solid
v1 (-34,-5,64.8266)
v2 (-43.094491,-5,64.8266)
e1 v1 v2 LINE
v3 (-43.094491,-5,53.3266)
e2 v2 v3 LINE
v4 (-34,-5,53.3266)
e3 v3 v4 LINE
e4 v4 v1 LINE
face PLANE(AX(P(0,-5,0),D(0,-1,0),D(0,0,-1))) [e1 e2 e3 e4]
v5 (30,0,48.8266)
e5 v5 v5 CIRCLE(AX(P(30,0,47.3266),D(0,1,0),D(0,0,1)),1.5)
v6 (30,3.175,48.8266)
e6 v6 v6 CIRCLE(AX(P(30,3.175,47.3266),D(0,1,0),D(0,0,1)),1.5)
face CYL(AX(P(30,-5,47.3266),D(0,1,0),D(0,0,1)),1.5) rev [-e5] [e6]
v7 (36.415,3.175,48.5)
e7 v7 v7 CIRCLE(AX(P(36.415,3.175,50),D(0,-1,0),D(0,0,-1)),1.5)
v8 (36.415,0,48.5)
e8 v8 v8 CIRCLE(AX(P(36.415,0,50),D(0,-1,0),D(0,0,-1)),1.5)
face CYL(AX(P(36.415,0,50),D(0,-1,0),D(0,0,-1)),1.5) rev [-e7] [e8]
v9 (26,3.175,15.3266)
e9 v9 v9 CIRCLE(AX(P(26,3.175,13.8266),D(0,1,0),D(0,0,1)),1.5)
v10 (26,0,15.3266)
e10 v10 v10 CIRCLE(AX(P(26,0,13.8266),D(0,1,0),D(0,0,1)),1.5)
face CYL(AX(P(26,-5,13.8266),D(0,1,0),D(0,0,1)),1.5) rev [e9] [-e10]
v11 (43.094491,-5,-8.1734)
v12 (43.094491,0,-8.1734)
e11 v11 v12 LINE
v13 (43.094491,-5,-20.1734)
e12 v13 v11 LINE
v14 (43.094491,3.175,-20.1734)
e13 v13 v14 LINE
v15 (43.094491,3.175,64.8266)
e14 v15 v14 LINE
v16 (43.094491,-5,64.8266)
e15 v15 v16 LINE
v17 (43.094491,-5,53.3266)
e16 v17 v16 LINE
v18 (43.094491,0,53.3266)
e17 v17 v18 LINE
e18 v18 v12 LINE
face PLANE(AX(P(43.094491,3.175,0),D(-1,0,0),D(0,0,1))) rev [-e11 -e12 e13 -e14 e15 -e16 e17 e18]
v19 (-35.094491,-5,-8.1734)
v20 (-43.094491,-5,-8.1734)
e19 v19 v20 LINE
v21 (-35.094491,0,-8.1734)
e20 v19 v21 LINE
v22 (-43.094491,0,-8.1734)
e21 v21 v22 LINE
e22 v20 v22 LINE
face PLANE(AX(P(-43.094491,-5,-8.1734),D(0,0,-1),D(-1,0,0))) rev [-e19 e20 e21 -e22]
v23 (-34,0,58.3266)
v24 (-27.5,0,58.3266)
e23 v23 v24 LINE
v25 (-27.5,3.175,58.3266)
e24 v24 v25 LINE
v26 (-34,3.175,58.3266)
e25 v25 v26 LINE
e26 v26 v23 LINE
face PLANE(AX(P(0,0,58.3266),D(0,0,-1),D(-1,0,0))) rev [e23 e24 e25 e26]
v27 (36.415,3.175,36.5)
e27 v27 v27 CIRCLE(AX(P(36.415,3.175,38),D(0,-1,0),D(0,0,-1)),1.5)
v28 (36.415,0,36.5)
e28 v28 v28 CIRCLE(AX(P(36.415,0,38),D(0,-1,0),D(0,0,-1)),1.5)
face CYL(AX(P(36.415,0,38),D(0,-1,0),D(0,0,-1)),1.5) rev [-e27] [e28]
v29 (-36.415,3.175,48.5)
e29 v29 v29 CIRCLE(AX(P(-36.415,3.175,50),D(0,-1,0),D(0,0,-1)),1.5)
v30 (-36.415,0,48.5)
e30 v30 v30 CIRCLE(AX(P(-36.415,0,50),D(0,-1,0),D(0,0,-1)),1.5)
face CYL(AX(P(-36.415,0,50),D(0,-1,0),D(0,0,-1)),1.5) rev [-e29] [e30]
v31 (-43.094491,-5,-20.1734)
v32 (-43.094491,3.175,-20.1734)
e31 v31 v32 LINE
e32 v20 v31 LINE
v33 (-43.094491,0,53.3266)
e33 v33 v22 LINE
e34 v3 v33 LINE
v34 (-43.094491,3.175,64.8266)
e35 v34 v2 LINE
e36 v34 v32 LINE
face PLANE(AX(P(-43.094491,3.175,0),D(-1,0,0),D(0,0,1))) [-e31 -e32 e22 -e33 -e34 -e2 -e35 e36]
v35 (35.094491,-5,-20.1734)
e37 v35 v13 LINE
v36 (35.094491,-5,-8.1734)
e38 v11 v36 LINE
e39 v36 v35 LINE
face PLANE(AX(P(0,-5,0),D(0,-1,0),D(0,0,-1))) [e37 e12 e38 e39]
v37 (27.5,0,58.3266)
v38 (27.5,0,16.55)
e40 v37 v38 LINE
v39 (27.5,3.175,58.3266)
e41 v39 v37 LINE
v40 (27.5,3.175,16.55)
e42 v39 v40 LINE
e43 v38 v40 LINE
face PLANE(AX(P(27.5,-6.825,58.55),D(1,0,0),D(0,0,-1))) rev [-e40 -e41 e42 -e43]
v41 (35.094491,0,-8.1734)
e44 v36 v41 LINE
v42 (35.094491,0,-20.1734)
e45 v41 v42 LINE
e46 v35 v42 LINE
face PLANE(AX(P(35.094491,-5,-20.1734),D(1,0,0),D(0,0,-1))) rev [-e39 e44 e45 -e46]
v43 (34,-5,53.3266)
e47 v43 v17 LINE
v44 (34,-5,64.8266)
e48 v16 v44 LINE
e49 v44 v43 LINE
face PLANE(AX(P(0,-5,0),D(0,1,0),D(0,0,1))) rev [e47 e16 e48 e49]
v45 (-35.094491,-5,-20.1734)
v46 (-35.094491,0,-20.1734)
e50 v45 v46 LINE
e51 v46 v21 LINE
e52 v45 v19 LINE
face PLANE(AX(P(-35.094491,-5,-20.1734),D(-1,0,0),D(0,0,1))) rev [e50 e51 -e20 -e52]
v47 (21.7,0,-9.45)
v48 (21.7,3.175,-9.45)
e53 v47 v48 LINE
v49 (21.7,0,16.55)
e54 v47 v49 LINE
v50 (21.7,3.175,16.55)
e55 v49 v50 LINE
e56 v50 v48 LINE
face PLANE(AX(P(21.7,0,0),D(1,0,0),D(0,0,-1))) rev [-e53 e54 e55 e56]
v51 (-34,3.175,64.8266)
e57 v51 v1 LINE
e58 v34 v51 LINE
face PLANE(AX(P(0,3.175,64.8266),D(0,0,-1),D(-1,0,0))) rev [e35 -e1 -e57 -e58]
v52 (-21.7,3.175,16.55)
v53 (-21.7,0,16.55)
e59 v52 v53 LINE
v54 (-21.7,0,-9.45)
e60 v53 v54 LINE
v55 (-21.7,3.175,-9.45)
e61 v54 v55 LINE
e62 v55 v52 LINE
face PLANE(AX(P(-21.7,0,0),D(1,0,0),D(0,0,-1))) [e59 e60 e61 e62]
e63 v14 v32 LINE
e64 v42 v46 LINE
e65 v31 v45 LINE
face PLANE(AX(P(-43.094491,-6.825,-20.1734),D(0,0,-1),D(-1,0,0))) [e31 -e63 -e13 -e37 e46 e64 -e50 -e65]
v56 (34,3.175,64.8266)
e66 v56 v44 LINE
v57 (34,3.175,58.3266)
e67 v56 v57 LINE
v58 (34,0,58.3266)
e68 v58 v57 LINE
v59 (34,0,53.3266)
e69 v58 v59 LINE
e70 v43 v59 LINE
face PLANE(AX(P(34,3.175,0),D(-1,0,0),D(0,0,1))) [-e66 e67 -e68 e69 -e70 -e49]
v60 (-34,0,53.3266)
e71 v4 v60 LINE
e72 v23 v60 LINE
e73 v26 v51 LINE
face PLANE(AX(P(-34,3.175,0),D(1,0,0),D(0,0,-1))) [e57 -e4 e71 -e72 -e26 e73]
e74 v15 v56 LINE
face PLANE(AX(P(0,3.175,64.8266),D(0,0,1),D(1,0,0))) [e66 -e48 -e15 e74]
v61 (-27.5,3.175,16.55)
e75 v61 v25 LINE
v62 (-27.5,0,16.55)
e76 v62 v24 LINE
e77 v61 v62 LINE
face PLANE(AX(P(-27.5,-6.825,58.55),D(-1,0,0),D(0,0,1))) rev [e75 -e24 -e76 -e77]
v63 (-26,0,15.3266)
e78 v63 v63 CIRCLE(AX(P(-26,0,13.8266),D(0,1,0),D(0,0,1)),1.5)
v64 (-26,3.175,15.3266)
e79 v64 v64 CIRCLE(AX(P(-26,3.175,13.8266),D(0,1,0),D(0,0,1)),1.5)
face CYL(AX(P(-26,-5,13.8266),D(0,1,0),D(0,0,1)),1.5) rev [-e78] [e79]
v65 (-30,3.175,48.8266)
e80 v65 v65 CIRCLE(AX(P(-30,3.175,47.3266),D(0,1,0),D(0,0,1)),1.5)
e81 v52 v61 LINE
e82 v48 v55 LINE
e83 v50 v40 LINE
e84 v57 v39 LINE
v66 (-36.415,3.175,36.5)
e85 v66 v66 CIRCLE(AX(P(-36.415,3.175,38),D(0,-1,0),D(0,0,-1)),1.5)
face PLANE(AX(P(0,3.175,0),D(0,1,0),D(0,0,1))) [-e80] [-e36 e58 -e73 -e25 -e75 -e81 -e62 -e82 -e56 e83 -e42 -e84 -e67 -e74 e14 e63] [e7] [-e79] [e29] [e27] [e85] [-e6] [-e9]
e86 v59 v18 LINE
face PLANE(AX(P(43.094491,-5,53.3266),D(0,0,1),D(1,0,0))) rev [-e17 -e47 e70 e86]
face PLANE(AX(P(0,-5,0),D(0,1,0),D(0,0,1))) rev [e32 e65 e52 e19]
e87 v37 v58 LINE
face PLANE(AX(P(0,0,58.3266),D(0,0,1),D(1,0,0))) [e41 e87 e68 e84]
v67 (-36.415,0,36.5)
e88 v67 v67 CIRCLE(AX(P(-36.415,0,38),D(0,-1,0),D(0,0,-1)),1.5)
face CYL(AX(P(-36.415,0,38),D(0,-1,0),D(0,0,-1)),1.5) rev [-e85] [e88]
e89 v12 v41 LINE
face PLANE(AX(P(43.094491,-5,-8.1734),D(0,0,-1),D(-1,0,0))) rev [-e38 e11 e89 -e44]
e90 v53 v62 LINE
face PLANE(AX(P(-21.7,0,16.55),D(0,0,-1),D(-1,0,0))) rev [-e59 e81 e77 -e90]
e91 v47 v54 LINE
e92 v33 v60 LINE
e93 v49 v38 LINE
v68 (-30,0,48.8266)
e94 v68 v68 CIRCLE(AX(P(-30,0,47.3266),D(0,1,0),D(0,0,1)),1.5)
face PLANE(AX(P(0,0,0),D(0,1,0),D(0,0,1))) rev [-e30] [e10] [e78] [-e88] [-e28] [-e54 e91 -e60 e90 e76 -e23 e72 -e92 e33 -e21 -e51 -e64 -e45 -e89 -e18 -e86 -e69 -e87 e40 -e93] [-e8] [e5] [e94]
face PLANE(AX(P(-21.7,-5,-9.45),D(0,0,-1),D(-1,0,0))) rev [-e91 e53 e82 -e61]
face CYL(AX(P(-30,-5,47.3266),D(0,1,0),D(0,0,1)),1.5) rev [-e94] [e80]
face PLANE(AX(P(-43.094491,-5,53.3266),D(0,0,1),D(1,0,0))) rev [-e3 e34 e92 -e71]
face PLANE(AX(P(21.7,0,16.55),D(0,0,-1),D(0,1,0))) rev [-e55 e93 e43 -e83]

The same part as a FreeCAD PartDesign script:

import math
import FreeCAD as App
import Part
import Sketcher
from FreeCAD import Vector
Q = App.Units.Quantity


def add_polygon(sketch, points):
    """Adds a closed chain of lines whose ends are joined by coincident constraints."""
    first, n = sketch.GeometryCount, len(points)
    for a, b in zip(points, points[1:] + points[:1]):
        sketch.addGeometry(Part.LineSegment(App.Vector(*a, 0), App.Vector(*b, 0)), False)
    for i in range(n):
        sketch.addConstraint(Sketcher.Constraint("Coincident", first + i, 2, first + (i + 1) % n, 1))

doc = App.newDocument("Part")
params = doc.addObject("Spreadsheet::Sheet", "Params")
for row, (alias, value) in enumerate([
    ("sketch1_radius", "85 mm"),
    ("sketch1_width", "68 mm"),
    ("pad1_length", "3.175 mm"),
    ("sketch2_diameter", "3 mm"),
    ("hole_diameter", "3 mm"),
    ("sketch3_diameter", "3.1 mm"),
    ("hole2_diameter", "3.1 mm"),
    ("sketch4_diameter", "2.95 mm"),
    ("hole3_diameter", "2.95 mm"),
    ("sketch5_diameter", "3.1 mm"),
    ("hole4_diameter", "3.1 mm"),
    ("sketch6_radius", "1.5 mm"),
    ("sketch6_height", "5 mm"),
    ("pad2_length", "3.175 mm"),
    ("sketch8_height", "30 mm"),
    ("sketch8_width", "5.8 mm"),
    ("sketch8_width2", "42.4 mm"),
    ("sketch8_height2", "24.2 mm"),
    ("sketch9_diameter", "3 mm"),
    ("sketch10_width", "55 mm"),
    ("sketch10_height", "60 mm"),
    ("pocket4_length", "10 mm"),
    ("sketch11_height", "85 mm"),
    ("pocket5_length", "10 mm"),
    ("sketch12_width", "68 mm"),
    ("sketch12_height", "11.5 mm"),
    ("sketch13_width", "8 mm"),
    ("sketch13_height", "12 mm"),
    ("sketch13_height2", "11.5 mm"),
    ("pad3_length", "5 mm"),
    ("sketch14_width", "6.5 mm"),
    ("pad4_length", "5 mm"),
    ("sketch15_diameter", "3 mm"),
    ("sketch16_height", "18 mm"),
    ("pad5_length", "5.8 mm"),
    ("sketch17_height", "18 mm"),
    ("pad6_length", "5.8 mm"),
    ("sketch18_diameter", "3 mm"),
    ("sketch19_height", "8 mm"),
    ("sketch19_width", "43.4 mm"),
], start=1):
    params.set(f"A{row}", alias)
    params.set(f"B{row}", "=" + value)
    params.setAlias(f"B{row}", alias)

body = doc.addObject("PartDesign::Body", "Body")

# Sketch on XZ plane
sketch1 = body.newObject("Sketcher::SketchObject", "Sketch")
sketch1.AttachmentSupport = (doc.getObject("XZ_Plane"), [""])
sketch1.MapMode = "FlatFace"
sketch1.addGeometry(Part.LineSegment(Vector(-62.8, -32.5, 0), Vector(-74, -32.7, 0)), False)
sketch1.addGeometry(Part.LineSegment(Vector(-74, -32.7, 0), Vector(-77.1, -35.9, 0)), False)
sketch1.addGeometry(Part.ArcOfCircle(Part.Circle(Vector(0, 0, 0), Vector(0, 0, 1), 85), math.radians(169), math.radians(205)), False)
sketch1.addGeometry(Part.LineSegment(Vector(-83.4, 16.2, 0), Vector(-79.7, 13.8, 0)), False)
sketch1.addGeometry(Part.LineSegment(Vector(-79.7, 13.8, 0), Vector(-69.5, 16.2, 0)), False)
sketch1.addGeometry(Part.LineSegment(Vector(-69.5, 16.2, 0), Vector(-43.1, 58.4, 0)), False)
sketch1.addGeometry(Part.LineSegment(Vector(-43.1, 58.4, 0), Vector(-43.1, 64.8, 0)), False)
sketch1.addGeometry(Part.LineSegment(Vector(-43.1, 64.8, 0), Vector(-34, 64.8, 0)), False)
sketch1.addGeometry(Part.LineSegment(Vector(-34, 64.8, 0), Vector(-34, 58.5, 0)), False)
sketch1.addGeometry(Part.LineSegment(Vector(-34, 58.5, 0), Vector(34, 58.5, 0)), False)
sketch1.addGeometry(Part.LineSegment(Vector(34, 58.5, 0), Vector(34, 64.8, 0)), False)
sketch1.addGeometry(Part.LineSegment(Vector(34, 64.8, 0), Vector(43.1, 64.8, 0)), False)
sketch1.addGeometry(Part.LineSegment(Vector(43.1, 64.8, 0), Vector(43.1, 58.4, 0)), False)
sketch1.addGeometry(Part.LineSegment(Vector(43.1, 58.4, 0), Vector(69.5, 16.2, 0)), False)
sketch1.addGeometry(Part.LineSegment(Vector(69.5, 16.2, 0), Vector(79.7, 13.8, 0)), False)
sketch1.addGeometry(Part.LineSegment(Vector(79.7, 13.8, 0), Vector(83.4, 16.2, 0)), False)
sketch1.addGeometry(Part.ArcOfCircle(Part.Circle(Vector(0, 0, 0), Vector(0, 0, 1), 85), math.radians(-25), math.radians(11)), False)
sketch1.addGeometry(Part.LineSegment(Vector(77.1, -35.9, 0), Vector(74, -32.7, 0)), False)
sketch1.addGeometry(Part.LineSegment(Vector(74, -32.7, 0), Vector(62.8, -32.5, 0)), False)
sketch1.addGeometry(Part.LineSegment(Vector(62.8, -32.5, 0), Vector(30.3, -63.9, 0)), False)
sketch1.addGeometry(Part.LineSegment(Vector(30.3, -63.9, 0), Vector(30.1, -75.1, 0)), False)
sketch1.addGeometry(Part.LineSegment(Vector(30.1, -75.1, 0), Vector(33.2, -78.3, 0)), False)
sketch1.addGeometry(Part.ArcOfCircle(Part.Circle(Vector(0, 0, 0), Vector(0, 0, 1), 85), math.radians(-113), math.radians(-67)), False)
sketch1.addGeometry(Part.LineSegment(Vector(-33.2, -78.3, 0), Vector(-30.1, -75.1, 0)), False)
sketch1.addGeometry(Part.LineSegment(Vector(-30.1, -75.1, 0), Vector(-30.3, -63.9, 0)), False)
sketch1.addGeometry(Part.LineSegment(Vector(-30.3, -63.9, 0), Vector(-62.8, -32.5, 0)), False)
sketch1.addConstraint(Sketcher.Constraint("Coincident", 0, 2, 1, 1))
sketch1.addConstraint(Sketcher.Constraint("Coincident", 1, 2, 2, 2))
sketch1.addConstraint(Sketcher.Constraint("Coincident", 2, 1, 3, 1))
sketch1.addConstraint(Sketcher.Constraint("Coincident", 3, 2, 4, 1))
sketch1.addConstraint(Sketcher.Constraint("Coincident", 4, 2, 5, 1))
sketch1.addConstraint(Sketcher.Constraint("Coincident", 5, 2, 6, 1))
sketch1.addConstraint(Sketcher.Constraint("Coincident", 6, 2, 7, 1))
sketch1.addConstraint(Sketcher.Constraint("Coincident", 7, 2, 8, 1))
sketch1.addConstraint(Sketcher.Constraint("Coincident", 8, 2, 9, 1))
sketch1.addConstraint(Sketcher.Constraint("Coincident", 9, 2, 10, 1))
sketch1.addConstraint(Sketcher.Constraint("Coincident", 10, 2, 11, 1))
sketch1.addConstraint(Sketcher.Constraint("Coincident", 11, 2, 12, 1))
sketch1.addConstraint(Sketcher.Constraint("Coincident", 12, 2, 13, 1))
sketch1.addConstraint(Sketcher.Constraint("Coincident", 13, 2, 14, 1))
sketch1.addConstraint(Sketcher.Constraint("Coincident", 14, 2, 15, 1))
sketch1.addConstraint(Sketcher.Constraint("Coincident", 15, 2, 16, 2))
sketch1.addConstraint(Sketcher.Constraint("Coincident", 16, 1, 17, 1))
sketch1.addConstraint(Sketcher.Constraint("Coincident", 17, 2, 18, 1))
sketch1.addConstraint(Sketcher.Constraint("Coincident", 18, 2, 19, 1))
sketch1.addConstraint(Sketcher.Constraint("Coincident", 19, 2, 20, 1))
sketch1.addConstraint(Sketcher.Constraint("Coincident", 20, 2, 21, 1))
sketch1.addConstraint(Sketcher.Constraint("Coincident", 21, 2, 22, 2))
sketch1.addConstraint(Sketcher.Constraint("Coincident", 22, 1, 23, 1))
sketch1.addConstraint(Sketcher.Constraint("Coincident", 23, 2, 24, 1))
sketch1.addConstraint(Sketcher.Constraint("Coincident", 24, 2, 25, 1))
sketch1.addConstraint(Sketcher.Constraint("Coincident", 25, 2, 0, 1))
sketch1.addConstraint(Sketcher.Constraint("Vertical", 6))
sketch1.addConstraint(Sketcher.Constraint("Horizontal", 7))
sketch1.addConstraint(Sketcher.Constraint("Vertical", 8))
sketch1.addConstraint(Sketcher.Constraint("Horizontal", 9))
sketch1.addConstraint(Sketcher.Constraint("Vertical", 10))
sketch1.addConstraint(Sketcher.Constraint("Horizontal", 11))
sketch1.addConstraint(Sketcher.Constraint("Vertical", 12))
sketch1.addConstraint(Sketcher.Constraint("Coincident", 2, 3, -1, 1))
sketch1.addConstraint(Sketcher.Constraint("Coincident", 16, 3, -1, 1))
sketch1.addConstraint(Sketcher.Constraint("Coincident", 22, 3, -1, 1))
sketch1.addConstraint(Sketcher.Constraint("Equal", 2, 16))
sketch1.addConstraint(Sketcher.Constraint("Equal", 16, 22))
sketch1.addConstraint(Sketcher.Constraint("Symmetric", 7, 2, 10, 2, -2))
sketch1.addConstraint(Sketcher.Constraint("Symmetric", 5, 2, 12, 2, -2))
sketch1.addConstraint(Sketcher.Constraint("Symmetric", 4, 2, 13, 2, -2))
sketch1.addConstraint(Sketcher.Constraint("Symmetric", 3, 2, 14, 2, -2))
sketch1.addConstraint(Sketcher.Constraint("Symmetric", 0, 2, 17, 2, -2))
sketch1.addConstraint(Sketcher.Constraint("Symmetric", 20, 2, 23, 2, -2))
sketch1.addConstraint(Sketcher.Constraint("Symmetric", 19, 2, 24, 2, -2))
sketch1.addConstraint(Sketcher.Constraint("Symmetric", 18, 2, 25, 2, -2))
sketch1.addConstraint(Sketcher.Constraint("Perpendicular", 3, 5))
sketch1.addConstraint(Sketcher.Constraint("Perpendicular", 13, 15))
sketch1.addConstraint(Sketcher.Constraint("Perpendicular", 17, 19))
sketch1.addConstraint(Sketcher.Constraint("Perpendicular", 18, 20))
sketch1.addConstraint(Sketcher.Constraint("Perpendicular", 19, 21))
sketch1.addConstraint(Sketcher.Constraint("Parallel", 1, 23))
sketch1.addConstraint(Sketcher.Constraint("Perpendicular", 23, 25))
sketch1.addConstraint(Sketcher.Constraint("Equal", 1, 3))
sketch1.addConstraint(Sketcher.Constraint("Equal", 18, 20))
sketch1.addConstraint(Sketcher.Constraint("Equal", 17, 21))
sketch1.addConstraint(Sketcher.Constraint("Radius", 2, Q("85 mm")))
sketch1.addConstraint(Sketcher.Constraint("DistanceX", 9, 1, 9, 2, Q("68 mm")))
sketch1.addConstraint(Sketcher.Constraint("Angle", 0, Q("-179 deg")))
sketch1.addConstraint(Sketcher.Constraint("Angle", 1, Q("-134 deg")))
sketch1.addConstraint(Sketcher.Constraint("Angle", 3, Q("-32 deg")))
sketch1.addConstraint(Sketcher.Constraint("Angle", 4, Q("13 deg")))
sketch1.addConstraint(Sketcher.Constraint("DistanceY", -1, 1, 8, 2, Q("58.55 mm")))
sketch1.addConstraint(Sketcher.Constraint("DistanceY", 8, 2, 8, 1, Q("6.2766 mm")))
sketch1.addConstraint(Sketcher.Constraint("DistanceX", 7, 1, 7, 2, Q("9.094491 mm")))
sketch1.addConstraint(Sketcher.Constraint("Distance", 19, Q("45.20101 mm")))
sketch1.addConstraint(Sketcher.Constraint("DistanceY", 6, 1, 6, 2, Q("6.414308 mm")))
sketch1.addConstraint(Sketcher.Constraint("DistanceY", 1, 2, -1, 1, Q("35.884951 mm")))
sketch1.addConstraint(Sketcher.Constraint("DistanceY", -1, 1, 2, 1, Q("16.178042 mm")))
sketch1.addConstraint(Sketcher.Constraint("DistanceX", 3, 2, -1, 1, Q("79.680912 mm")))
sketch1.setExpression("Constraints[56]", "Params.sketch1_radius")
sketch1.setExpression("Constraints[57]", "Params.sketch1_width")
pad1 = body.newObject("PartDesign::Pad", "Pad")
pad1.Profile = sketch1
pad1.setExpression("Length", "Params.pad1_length")
pad1.Reversed = True

# Sketch on XZ plane
sketch2 = body.newObject("Sketcher::SketchObject", "Sketch001")
sketch2.AttachmentSupport = (doc.getObject("XZ_Plane"), [""])
sketch2.MapMode = "FlatFace"
sketch2.addGeometry(Part.Circle(Vector(-36.4, 50, 0), Vector(0, 0, 1), 1.5), False)
sketch2.addGeometry(Part.Circle(Vector(-36.4, 38, 0), Vector(0, 0, 1), 1.5), False)
sketch2.addGeometry(Part.Circle(Vector(36.4, 50, 0), Vector(0, 0, 1), 1.5), False)
sketch2.addGeometry(Part.Circle(Vector(36.4, 38, 0), Vector(0, 0, 1), 1.5), False)
sketch2.addConstraint(Sketcher.Constraint("Equal", 0, 1))
sketch2.addConstraint(Sketcher.Constraint("Equal", 1, 2))
sketch2.addConstraint(Sketcher.Constraint("Equal", 2, 3))
sketch2.addConstraint(Sketcher.Constraint("Symmetric", 0, 3, 2, 3, -2))
sketch2.addConstraint(Sketcher.Constraint("Symmetric", 1, 3, 3, 3, -2))
sketch2.addConstraint(Sketcher.Constraint("Vertical", 0, 3, 1, 3))
sketch2.addConstraint(Sketcher.Constraint("Diameter", 0, Q("3 mm")))
sketch2.addConstraint(Sketcher.Constraint("DistanceY", -1, 1, 0, 3, Q("50 mm")))
sketch2.addConstraint(Sketcher.Constraint("DistanceY", -1, 1, 1, 3, Q("38 mm")))
sketch2.addConstraint(Sketcher.Constraint("DistanceX", 0, 3, 2, 3, Q("72.83 mm")))
sketch2.setExpression("Constraints[6]", "Params.sketch2_diameter")
doc.recompute()
hole = body.newObject("PartDesign::Hole", "Hole")
hole.Profile = sketch2
hole.ThreadType = "None"
hole.setExpression("Diameter", "Params.hole_diameter")
hole.DepthType = "ThroughAll"

# Sketch on XZ plane
sketch3 = body.newObject("Sketcher::SketchObject", "Sketch002")
sketch3.AttachmentSupport = (doc.getObject("XZ_Plane"), [""])
sketch3.MapMode = "FlatFace"
sketch3.AttachmentOffset = App.Placement(Vector(0, 0, -3.175), App.Rotation())
sketch3.addGeometry(Part.Circle(Vector(-78.5, 8.5, 0), Vector(0, 0, 1), 1.6), False)
sketch3.addGeometry(Part.Circle(Vector(78.5, 8.5, 0), Vector(0, 0, 1), 1.6), False)
sketch3.addGeometry(Part.Circle(Vector(74.2, -27.2, 0), Vector(0, 0, 1), 1.6), False)
sketch3.addGeometry(Part.Circle(Vector(-74.2, -27.2, 0), Vector(0, 0, 1), 1.6), False)
sketch3.addConstraint(Sketcher.Constraint("Equal", 0, 1))
sketch3.addConstraint(Sketcher.Constraint("Equal", 1, 2))
sketch3.addConstraint(Sketcher.Constraint("Equal", 2, 3))
sketch3.addConstraint(Sketcher.Constraint("Symmetric", 0, 3, 1, 3, -2))
sketch3.addConstraint(Sketcher.Constraint("Symmetric", 2, 3, 3, 3, -2))
sketch3.addConstraint(Sketcher.Constraint("Diameter", 0, Q("3.1 mm")))
sketch3.addConstraint(Sketcher.Constraint("DistanceX", 0, 3, -1, 1, Q("78.542321 mm")))
sketch3.addConstraint(Sketcher.Constraint("DistanceY", 2, 3, -1, 1, Q("27.240269 mm")))
sketch3.addConstraint(Sketcher.Constraint("DistanceY", 2, 3, 1, 3, Q("35.731661 mm")))
sketch3.addConstraint(Sketcher.Constraint("DistanceX", 3, 3, 2, 3, Q("148.31005 mm")))
sketch3.setExpression("Constraints[5]", "Params.sketch3_diameter")
doc.recompute()
hole2 = body.newObject("PartDesign::Hole", "Hole001")
hole2.Profile = sketch3
hole2.ThreadType = "None"
hole2.setExpression("Diameter", "Params.hole2_diameter")
hole2.DepthType = "ThroughAll"
hole2.Reversed = True

# Sketch on XZ plane
sketch4 = body.newObject("Sketcher::SketchObject", "Sketch003")
sketch4.AttachmentSupport = (doc.getObject("XZ_Plane"), [""])
sketch4.MapMode = "FlatFace"
sketch4.addGeometry(Part.Circle(Vector(67.1, 15.3, 0), Vector(0, 0, 1), 1.5), False)
sketch4.addGeometry(Part.Circle(Vector(50.1, 42.4, 0), Vector(0, 0, 1), 1.5), False)
sketch4.addGeometry(Part.Circle(Vector(61.1, -30.7, 0), Vector(0, 0, 1), 1.5), False)
sketch4.addGeometry(Part.Circle(Vector(38, -52.9, 0), Vector(0, 0, 1), 1.5), False)
sketch4.addGeometry(Part.Circle(Vector(-50.1, 42.4, 0), Vector(0, 0, 1), 1.5), False)
sketch4.addGeometry(Part.Circle(Vector(-67.1, 15.3, 0), Vector(0, 0, 1), 1.5), False)
sketch4.addGeometry(Part.Circle(Vector(-38, -52.9, 0), Vector(0, 0, 1), 1.5), False)
sketch4.addGeometry(Part.Circle(Vector(-61.1, -30.7, 0), Vector(0, 0, 1), 1.5), False)
sketch4.addConstraint(Sketcher.Constraint("Equal", 0, 1))
sketch4.addConstraint(Sketcher.Constraint("Equal", 1, 2))
sketch4.addConstraint(Sketcher.Constraint("Equal", 2, 3))
sketch4.addConstraint(Sketcher.Constraint("Equal", 3, 4))
sketch4.addConstraint(Sketcher.Constraint("Equal", 4, 5))
sketch4.addConstraint(Sketcher.Constraint("Equal", 5, 6))
sketch4.addConstraint(Sketcher.Constraint("Equal", 6, 7))
sketch4.addConstraint(Sketcher.Constraint("Symmetric", 1, 3, 4, 3, -2))
sketch4.addConstraint(Sketcher.Constraint("Symmetric", 0, 3, 5, 3, -2))
sketch4.addConstraint(Sketcher.Constraint("Symmetric", 3, 3, 6, 3, -2))
sketch4.addConstraint(Sketcher.Constraint("Symmetric", 2, 3, 7, 3, -2))
sketch4.addConstraint(Sketcher.Constraint("Diameter", 0, Q("2.95 mm")))
sketch4.addConstraint(Sketcher.Constraint("DistanceX", -1, 1, 0, 3, Q("67.099302 mm")))
sketch4.addConstraint(Sketcher.Constraint("DistanceX", -1, 1, 3, 3, Q("38.043671 mm")))
sketch4.addConstraint(Sketcher.Constraint("DistanceY", 0, 3, 1, 3, Q("27.137539 mm")))
sketch4.addConstraint(Sketcher.Constraint("DistanceX", 1, 3, 2, 3, Q("10.920659 mm")))
sketch4.addConstraint(Sketcher.Constraint("DistanceY", 3, 3, 0, 3, Q("68.206071 mm")))
sketch4.addConstraint(Sketcher.Constraint("DistanceX", 4, 3, 1, 3, Q("100.28377 mm")))
sketch4.addConstraint(Sketcher.Constraint("DistanceY", -1, 1, 0, 3, Q("15.278865 mm")))
sketch4.addConstraint(Sketcher.Constraint("DistanceY", 2, 3, -1, 1, Q("30.698138 mm")))
sketch4.setExpression("Constraints[11]", "Params.sketch4_diameter")
doc.recompute()
hole3 = body.newObject("PartDesign::Hole", "Hole002")
hole3.Profile = sketch4
hole3.ThreadType = "None"
hole3.setExpression("Diameter", "Params.hole3_diameter")
hole3.DepthType = "ThroughAll"

# Sketch on XZ plane
sketch5 = body.newObject("Sketcher::SketchObject", "Sketch004")
sketch5.AttachmentSupport = (doc.getObject("XZ_Plane"), [""])
sketch5.MapMode = "FlatFace"
sketch5.AttachmentOffset = App.Placement(Vector(0, 0, -3.175), App.Rotation())
sketch5.addGeometry(Part.Circle(Vector(27, -76.5, 0), Vector(0, 0, 1), 1.6), False)
sketch5.addGeometry(Part.Circle(Vector(-27, -76.5, 0), Vector(0, 0, 1), 1.6), False)
sketch5.addConstraint(Sketcher.Constraint("Equal", 0, 1))
sketch5.addConstraint(Sketcher.Constraint("Symmetric", 0, 3, 1, 3, -2))
sketch5.addConstraint(Sketcher.Constraint("Diameter", 0, Q("3.1 mm")))
sketch5.addConstraint(Sketcher.Constraint("DistanceX", -1, 1, 0, 3, Q("27 mm")))
sketch5.addConstraint(Sketcher.Constraint("DistanceY", 0, 3, -1, 1, Q("76.497767 mm")))
sketch5.setExpression("Constraints[2]", "Params.sketch5_diameter")
doc.recompute()
hole4 = body.newObject("PartDesign::Hole", "Hole003")
hole4.Profile = sketch5
hole4.ThreadType = "None"
hole4.setExpression("Diameter", "Params.hole4_diameter")
hole4.DepthType = "ThroughAll"
hole4.Reversed = True

# Sketch on XZ plane
sketch6 = body.newObject("Sketcher::SketchObject", "Sketch005")
sketch6.AttachmentSupport = (doc.getObject("XZ_Plane"), [""])
sketch6.MapMode = "FlatFace"
sketch6.AttachmentOffset = App.Placement(Vector(0, 0, -3.175), App.Rotation())
sketch6.addGeometry(Part.LineSegment(Vector(-14.6, -40.5, 0), Vector(-14.6, -45.5, 0)), False)
sketch6.addGeometry(Part.ArcOfCircle(Part.Circle(Vector(-16.1, -45.5, 0), Vector(0, 0, 1), 1.5), math.radians(180), math.radians(360)), False)
sketch6.addGeometry(Part.LineSegment(Vector(-17.6, -45.5, 0), Vector(-17.6, -40.5, 0)), False)
sketch6.addGeometry(Part.ArcOfCircle(Part.Circle(Vector(-16.1, -40.5, 0), Vector(0, 0, 1), 1.5), math.radians(0), math.radians(180)), False)
sketch6.addGeometry(Part.LineSegment(Vector(14.6, -45.5, 0), Vector(14.6, -40.5, 0)), False)
sketch6.addGeometry(Part.ArcOfCircle(Part.Circle(Vector(16.1, -40.5, 0), Vector(0, 0, 1), 1.5), math.radians(0), math.radians(180)), False)
sketch6.addGeometry(Part.LineSegment(Vector(17.6, -40.5, 0), Vector(17.6, -45.5, 0)), False)
sketch6.addGeometry(Part.ArcOfCircle(Part.Circle(Vector(16.1, -45.5, 0), Vector(0, 0, 1), 1.5), math.radians(180), math.radians(360)), False)
sketch6.addConstraint(Sketcher.Constraint("Tangent", 0, 2, 1, 2))
sketch6.addConstraint(Sketcher.Constraint("Tangent", 1, 1, 2, 1))
sketch6.addConstraint(Sketcher.Constraint("Tangent", 2, 2, 3, 2))
sketch6.addConstraint(Sketcher.Constraint("Tangent", 3, 1, 0, 1))
sketch6.addConstraint(Sketcher.Constraint("Tangent", 4, 2, 5, 2))
sketch6.addConstraint(Sketcher.Constraint("Tangent", 5, 1, 6, 1))
sketch6.addConstraint(Sketcher.Constraint("Tangent", 6, 2, 7, 2))
sketch6.addConstraint(Sketcher.Constraint("Tangent", 7, 1, 4, 1))
sketch6.addConstraint(Sketcher.Constraint("Vertical", 0))
sketch6.addConstraint(Sketcher.Constraint("Vertical", 2))
sketch6.addConstraint(Sketcher.Constraint("Vertical", 4))
sketch6.addConstraint(Sketcher.Constraint("Vertical", 6))
sketch6.addConstraint(Sketcher.Constraint("Equal", 3, 5))
sketch6.addConstraint(Sketcher.Constraint("Symmetric", 3, 3, 5, 3, -2))
sketch6.addConstraint(Sketcher.Constraint("Horizontal", 1, 3, 7, 3))
sketch6.addConstraint(Sketcher.Constraint("Radius", 1, Q("1.5 mm")))
sketch6.addConstraint(Sketcher.Constraint("DistanceY", 0, 2, 0, 1, Q("5 mm")))
sketch6.addConstraint(Sketcher.Constraint("DistanceY", 1, 3, -1, 1, Q("45.5 mm")))
sketch6.addConstraint(Sketcher.Constraint("DistanceX", 3, 3, 5, 3, Q("32.297001 mm")))
sketch6.setExpression("Constraints[15]", "Params.sketch6_radius")
sketch6.setExpression("Constraints[16]", "Params.sketch6_height")
pocket1 = body.newObject("PartDesign::Pocket", "Pocket")
pocket1.Profile = sketch6
pocket1.Type = "ThroughAll"
pocket1.Reversed = True

# Sketch on XZ plane
sketch7 = body.newObject("Sketcher::SketchObject", "Sketch006")
sketch7.AttachmentSupport = (doc.getObject("XZ_Plane"), [""])
sketch7.MapMode = "FlatFace"
sketch7.AttachmentOffset = App.Placement(Vector(0, 0, -3.175), App.Rotation())
add_polygon(sketch7, [(-30.3, -63.9), (-30.2, -66.2), (-65.1, -32.5), (-62.8, -32.5)])  # lines 0-3
add_polygon(sketch7, [(-69.5, 16.2), (-71.7, 15.7), (-43.1, 61.4), (-43.1, 58.4)])  # lines 4-7
add_polygon(sketch7, [(43.1, 61.4), (71.7, 15.7), (69.5, 16.2), (43.1, 58.4)])  # lines 8-11
add_polygon(sketch7, [(65.1, -32.5), (30.2, -66.2), (30.3, -63.9), (62.8, -32.5)])  # lines 12-15
sketch7.addConstraint(Sketcher.Constraint("Vertical", 6))
sketch7.addConstraint(Sketcher.Constraint("Vertical", 11))
sketch7.addConstraint(Sketcher.Constraint("Symmetric", 4, 2, 8, 2, -2))
sketch7.addConstraint(Sketcher.Constraint("Symmetric", 7, 2, 9, 2, -2))
sketch7.addConstraint(Sketcher.Constraint("Symmetric", 6, 2, 10, 2, -2))
sketch7.addConstraint(Sketcher.Constraint("Symmetric", 0, 2, 12, 2, -2))
sketch7.addConstraint(Sketcher.Constraint("Symmetric", 3, 2, 13, 2, -2))
sketch7.addConstraint(Sketcher.Constraint("Symmetric", 2, 2, 14, 2, -2))
sketch7.addConstraint(Sketcher.Constraint("Symmetric", 1, 2, 15, 2, -2))
sketch7.addConstraint(Sketcher.Constraint("Perpendicular", 0, 2))
sketch7.addConstraint(Sketcher.Constraint("Parallel", 1, 3))
sketch7.addConstraint(Sketcher.Constraint("Parallel", 5, 7))
sketch7.addConstraint(Sketcher.Constraint("Parallel", 8, 10))
sketch7.addConstraint(Sketcher.Constraint("Equal", 0, 2))
sketch7.addConstraint(Sketcher.Constraint("Equal", 2, 4))
sketch7.addConstraint(Sketcher.Constraint("Angle", 0, Q("-89 deg")))
sketch7.addConstraint(Sketcher.Constraint("Angle", 4, Q("-167 deg")))
sketch7.addConstraint(Sketcher.Constraint("Angle", 5, Q("58 deg")))
sketch7.addConstraint(Sketcher.Constraint("DistanceY", 0, 2, 4, 2, Q("81.827999 mm")))
sketch7.addConstraint(Sketcher.Constraint("DistanceY", 3, 2, 4, 2, Q("79.565602 mm")))
sketch7.addConstraint(Sketcher.Constraint("DistanceX", 7, 2, 1, 2, Q("4.422698 mm")))
sketch7.addConstraint(Sketcher.Constraint("Distance", 1, Q("48.40101 mm")))
sketch7.addConstraint(Sketcher.Constraint("DistanceX", 1, 2, -1, 1, Q("65.061951 mm")))
sketch7.addConstraint(Sketcher.Constraint("DistanceX", 5, 2, -1, 1, Q("43.094491 mm")))
sketch7.addConstraint(Sketcher.Constraint("DistanceY", -1, 1, 5, 2, Q("61.431621 mm")))
pad2 = body.newObject("PartDesign::Pad", "Pad001")
pad2.Profile = sketch7
pad2.setExpression("Length", "Params.pad2_length")

# Sketch on XZ plane
sketch8 = body.newObject("Sketcher::SketchObject", "Sketch007")
sketch8.AttachmentSupport = (doc.getObject("XZ_Plane"), [""])
sketch8.MapMode = "FlatFace"
sketch8.AttachmentOffset = App.Placement(Vector(0, 0, -3.175), App.Rotation())
add_polygon(sketch8, [(-27, 23), (-27, 53), (-21, 53), (-21, 59), (21, 59), (21, 53), (27, 53), (27, 23), (21, 23), (21, -1), (-21, -1), (-21, 23)])  # lines 0-11
sketch8.addConstraint(Sketcher.Constraint("Vertical", 0))
sketch8.addConstraint(Sketcher.Constraint("Horizontal", 1))
sketch8.addConstraint(Sketcher.Constraint("Vertical", 2))
sketch8.addConstraint(Sketcher.Constraint("Horizontal", 3))
sketch8.addConstraint(Sketcher.Constraint("Vertical", 4))
sketch8.addConstraint(Sketcher.Constraint("Horizontal", 5))
sketch8.addConstraint(Sketcher.Constraint("Vertical", 6))
sketch8.addConstraint(Sketcher.Constraint("Horizontal", 7))
sketch8.addConstraint(Sketcher.Constraint("Vertical", 8))
sketch8.addConstraint(Sketcher.Constraint("Horizontal", 9))
sketch8.addConstraint(Sketcher.Constraint("Vertical", 10))
sketch8.addConstraint(Sketcher.Constraint("Horizontal", 11))
sketch8.addConstraint(Sketcher.Constraint("Symmetric", 1, 2, 4, 2, -2))
sketch8.addConstraint(Sketcher.Constraint("Symmetric", 7, 2, 10, 2, -2))
sketch8.addConstraint(Sketcher.Constraint("Vertical", 4, 2, 7, 2))
sketch8.addConstraint(Sketcher.Constraint("Equal", 1, 5))
sketch8.addConstraint(Sketcher.Constraint("Equal", 11, 2))
sketch8.addConstraint(Sketcher.Constraint("DistanceY", 0, 1, 0, 2, Q("30 mm")))
sketch8.addConstraint(Sketcher.Constraint("DistanceX", 1, 1, 1, 2, Q("5.8 mm")))
sketch8.addConstraint(Sketcher.Constraint("DistanceX", 3, 1, 3, 2, Q("42.4 mm")))
sketch8.addConstraint(Sketcher.Constraint("DistanceY", 8, 2, 8, 1, Q("24.2 mm")))
sketch8.addConstraint(Sketcher.Constraint("DistanceY", -1, 1, 0, 2, Q("52.75 mm")))
sketch8.setExpression("Constraints[29]", "Params.sketch8_height")
sketch8.setExpression("Constraints[30]", "Params.sketch8_width")
sketch8.setExpression("Constraints[31]", "Params.sketch8_width2")
sketch8.setExpression("Constraints[32]", "Params.sketch8_height2")
pocket2 = body.newObject("PartDesign::Pocket", "Pocket001")
pocket2.Profile = sketch8
pocket2.Type = "ThroughAll"
pocket2.Reversed = True

# Sketch on XZ plane
sketch9 = body.newObject("Sketcher::SketchObject", "Sketch008")
sketch9.AttachmentSupport = (doc.getObject("XZ_Plane"), [""])
sketch9.MapMode = "FlatFace"
sketch9.AttachmentOffset = App.Placement(Vector(0, 0, -3.175), App.Rotation())
sketch9.addGeometry(Part.Circle(Vector(-24.1, 55.6, 0), Vector(0, 0, 1), 1.5), False)
sketch9.addGeometry(Part.Circle(Vector(-24.1, 19.9, 0), Vector(0, 0, 1), 1.5), False)
sketch9.addGeometry(Part.Circle(Vector(24.1, 19.9, 0), Vector(0, 0, 1), 1.5), False)
sketch9.addGeometry(Part.Circle(Vector(24.1, 55.6, 0), Vector(0, 0, 1), 1.5), False)
sketch9.addConstraint(Sketcher.Constraint("Equal", 0, 1))
sketch9.addConstraint(Sketcher.Constraint("Equal", 1, 2))
sketch9.addConstraint(Sketcher.Constraint("Equal", 2, 3))
sketch9.addConstraint(Sketcher.Constraint("Symmetric", 1, 3, 2, 3, -2))
sketch9.addConstraint(Sketcher.Constraint("Symmetric", 0, 3, 3, 3, -2))
sketch9.addConstraint(Sketcher.Constraint("Vertical", 0, 3, 1, 3))
sketch9.addConstraint(Sketcher.Constraint("Diameter", 0, Q("3 mm")))
sketch9.addConstraint(Sketcher.Constraint("DistanceX", 0, 3, -1, 1, Q("24.1 mm")))
sketch9.addConstraint(Sketcher.Constraint("DistanceY", 1, 3, 0, 3, Q("35.8 mm")))
sketch9.addConstraint(Sketcher.Constraint("DistanceY", -1, 1, 0, 3, Q("55.65 mm")))
sketch9.setExpression("Constraints[6]", "Params.sketch9_diameter")
pocket3 = body.newObject("PartDesign::Pocket", "Pocket002")
pocket3.Profile = sketch9
pocket3.Type = "ThroughAll"
pocket3.Reversed = True

# Sketch on XZ plane
sketch10 = body.newObject("Sketcher::SketchObject", "Sketch009")
sketch10.AttachmentSupport = (doc.getObject("XZ_Plane"), [""])
sketch10.MapMode = "FlatFace"
sketch10.AttachmentOffset = App.Placement(Vector(0, 0, -3.175), App.Rotation())
add_polygon(sketch10, [(-28, -1), (-28, 59), (28, 59), (28, -1)])  # lines 0-3
sketch10.addConstraint(Sketcher.Constraint("Vertical", 0))
sketch10.addConstraint(Sketcher.Constraint("Horizontal", 1))
sketch10.addConstraint(Sketcher.Constraint("Vertical", 2))
sketch10.addConstraint(Sketcher.Constraint("Horizontal", 3))
sketch10.addConstraint(Sketcher.Constraint("DistanceX", 1, 1, 1, 2, Q("55 mm")))
sketch10.addConstraint(Sketcher.Constraint("DistanceY", 0, 1, 0, 2, Q("60 mm")))
sketch10.addConstraint(Sketcher.Constraint("DistanceX", 0, 2, -1, 1, Q("27.5 mm")))
sketch10.addConstraint(Sketcher.Constraint("DistanceY", -1, 1, 0, 2, Q("58.55 mm")))
sketch10.setExpression("Constraints[8]", "Params.sketch10_width")
sketch10.setExpression("Constraints[9]", "Params.sketch10_height")
pocket4 = body.newObject("PartDesign::Pocket", "Pocket003")
pocket4.Profile = sketch10
pocket4.setExpression("Length", "Params.pocket4_length")
pocket4.Reversed = True

# Sketch on XZ plane
sketch11 = body.newObject("Sketcher::SketchObject", "Sketch010")
sketch11.AttachmentSupport = (doc.getObject("XZ_Plane"), [""])
sketch11.MapMode = "FlatFace"
sketch11.AttachmentOffset = App.Placement(Vector(0, 0, -3.175), App.Rotation())
add_polygon(sketch11, [(-109, -109), (-109, 88), (109, 88), (109, -109)])  # lines 0-3
add_polygon(sketch11, [(43, 65), (-43, 65), (-43, -20), (43, -20)])  # lines 4-7
sketch11.addConstraint(Sketcher.Constraint("Vertical", 0))
sketch11.addConstraint(Sketcher.Constraint("Horizontal", 1))
sketch11.addConstraint(Sketcher.Constraint("Vertical", 2))
sketch11.addConstraint(Sketcher.Constraint("Horizontal", 3))
sketch11.addConstraint(Sketcher.Constraint("Horizontal", 4))
sketch11.addConstraint(Sketcher.Constraint("Vertical", 5))
sketch11.addConstraint(Sketcher.Constraint("Horizontal", 6))
sketch11.addConstraint(Sketcher.Constraint("Vertical", 7))
sketch11.addConstraint(Sketcher.Constraint("DistanceY", 5, 2, 5, 1, Q("85 mm")))
sketch11.addConstraint(Sketcher.Constraint("DistanceX", 1, 1, 1, 2, Q("217.324 mm")))
sketch11.addConstraint(Sketcher.Constraint("DistanceY", 0, 1, 0, 2, Q("197.151 mm")))
sketch11.addConstraint(Sketcher.Constraint("DistanceX", 0, 2, -1, 1, Q("108.662 mm")))
sketch11.addConstraint(Sketcher.Constraint("DistanceY", -1, 1, 0, 2, Q("88.489 mm")))
sketch11.addConstraint(Sketcher.Constraint("DistanceX", 4, 2, 4, 1, Q("86.188982 mm")))
sketch11.addConstraint(Sketcher.Constraint("DistanceY", -1, 1, 4, 2, Q("64.8266 mm")))
sketch11.addConstraint(Sketcher.Constraint("DistanceX", 4, 2, -1, 1, Q("43.094491 mm")))
sketch11.setExpression("Constraints[16]", "Params.sketch11_height")
pocket5 = body.newObject("PartDesign::Pocket", "Pocket004")
pocket5.Profile = sketch11
pocket5.setExpression("Length", "Params.pocket5_length")
pocket5.Reversed = True

# Sketch on XZ plane
sketch12 = body.newObject("Sketcher::SketchObject", "Sketch011")
sketch12.AttachmentSupport = (doc.getObject("XZ_Plane"), [""])
sketch12.MapMode = "FlatFace"
sketch12.AttachmentOffset = App.Placement(Vector(0, 0, -3.175), App.Rotation())
add_polygon(sketch12, [(-34, 53), (-34, 65), (34, 65), (34, 53)])  # lines 0-3
sketch12.addConstraint(Sketcher.Constraint("Vertical", 0))
sketch12.addConstraint(Sketcher.Constraint("Horizontal", 1))
sketch12.addConstraint(Sketcher.Constraint("Vertical", 2))
sketch12.addConstraint(Sketcher.Constraint("Horizontal", 3))
sketch12.addConstraint(Sketcher.Constraint("DistanceX", 1, 1, 1, 2, Q("68 mm")))
sketch12.addConstraint(Sketcher.Constraint("DistanceY", 0, 1, 0, 2, Q("11.5 mm")))
sketch12.addConstraint(Sketcher.Constraint("DistanceX", 0, 2, -1, 1, Q("34 mm")))
sketch12.addConstraint(Sketcher.Constraint("DistanceY", -1, 1, 0, 2, Q("64.8266 mm")))
sketch12.setExpression("Constraints[8]", "Params.sketch12_width")
sketch12.setExpression("Constraints[9]", "Params.sketch12_height")
pocket6 = body.newObject("PartDesign::Pocket", "Pocket005")
pocket6.Profile = sketch12
pocket6.Type = "ThroughAll"
pocket6.Reversed = True

# Sketch on XZ plane
sketch13 = body.newObject("Sketcher::SketchObject", "Sketch012")
sketch13.AttachmentSupport = (doc.getObject("XZ_Plane"), [""])
sketch13.MapMode = "FlatFace"
add_polygon(sketch13, [(-43, 65), (-43, 53), (-34, 53), (-34, 65)])  # lines 0-3
add_polygon(sketch13, [(34, 65), (34, 53), (43, 53), (43, 65)])  # lines 4-7
add_polygon(sketch13, [(-43, -8), (-43, -20), (-35, -20), (-35, -8)])  # lines 8-11
add_polygon(sketch13, [(35, -8), (35, -20), (43, -20), (43, -8)])  # lines 12-15
sketch13.addConstraint(Sketcher.Constraint("Vertical", 0))
sketch13.addConstraint(Sketcher.Constraint("Horizontal", 1))
sketch13.addConstraint(Sketcher.Constraint("Vertical", 2))
sketch13.addConstraint(Sketcher.Constraint("Horizontal", 3))
sketch13.addConstraint(Sketcher.Constraint("Vertical", 4))
sketch13.addConstraint(Sketcher.Constraint("Horizontal", 5))
sketch13.addConstraint(Sketcher.Constraint("Vertical", 6))
sketch13.addConstraint(Sketcher.Constraint("Horizontal", 7))
sketch13.addConstraint(Sketcher.Constraint("Vertical", 8))
sketch13.addConstraint(Sketcher.Constraint("Horizontal", 9))
sketch13.addConstraint(Sketcher.Constraint("Vertical", 10))
sketch13.addConstraint(Sketcher.Constraint("Horizontal", 11))
sketch13.addConstraint(Sketcher.Constraint("Vertical", 12))
sketch13.addConstraint(Sketcher.Constraint("Horizontal", 13))
sketch13.addConstraint(Sketcher.Constraint("Vertical", 14))
sketch13.addConstraint(Sketcher.Constraint("Horizontal", 15))
sketch13.addConstraint(Sketcher.Constraint("Symmetric", 1, 2, 4, 2, -2))
sketch13.addConstraint(Sketcher.Constraint("Symmetric", 3, 2, 6, 2, -2))
sketch13.addConstraint(Sketcher.Constraint("Symmetric", 9, 2, 12, 2, -2))
sketch13.addConstraint(Sketcher.Constraint("Symmetric", 11, 2, 14, 2, -2))
sketch13.addConstraint(Sketcher.Constraint("Vertical", 3, 2, 8, 2))
sketch13.addConstraint(Sketcher.Constraint("DistanceX", 9, 1, 9, 2, Q("8 mm")))
sketch13.addConstraint(Sketcher.Constraint("DistanceY", 8, 2, 8, 1, Q("12 mm")))
sketch13.addConstraint(Sketcher.Constraint("DistanceY", 0, 2, 0, 1, Q("11.5 mm")))
sketch13.addConstraint(Sketcher.Constraint("DistanceX", 1, 2, -1, 1, Q("34 mm")))
sketch13.addConstraint(Sketcher.Constraint("DistanceY", 8, 2, 3, 2, Q("85 mm")))
sketch13.addConstraint(Sketcher.Constraint("DistanceX", 1, 1, 1, 2, Q("9.094491 mm")))
sketch13.addConstraint(Sketcher.Constraint("DistanceY", -1, 1, 0, 2, Q("53.3266 mm")))
sketch13.setExpression("Constraints[37]", "Params.sketch13_width")
sketch13.setExpression("Constraints[38]", "Params.sketch13_height")
sketch13.setExpression("Constraints[39]", "Params.sketch13_height2")
pad3 = body.newObject("PartDesign::Pad", "Pad002")
pad3.Profile = sketch13
pad3.setExpression("Length", "Params.pad3_length")

# Sketch on XY plane
sketch14 = body.newObject("Sketcher::SketchObject", "Sketch013")
sketch14.AttachmentSupport = (doc.getObject("XY_Plane"), [""])
sketch14.MapMode = "FlatFace"
sketch14.AttachmentOffset = App.Placement(Vector(0, 0, 53.3266), App.Rotation())
add_polygon(sketch14, [(-34, 3.2), (-34, 0), (-27.5, 0), (-27.5, 3.2)])  # lines 0-3
add_polygon(sketch14, [(27.5, 3.2), (27.5, 0), (34, 0), (34, 3.2)])  # lines 4-7
sketch14.addConstraint(Sketcher.Constraint("Vertical", 0))
sketch14.addConstraint(Sketcher.Constraint("Horizontal", 1))
sketch14.addConstraint(Sketcher.Constraint("Vertical", 2))
sketch14.addConstraint(Sketcher.Constraint("Horizontal", 3))
sketch14.addConstraint(Sketcher.Constraint("Vertical", 4))
sketch14.addConstraint(Sketcher.Constraint("Horizontal", 5))
sketch14.addConstraint(Sketcher.Constraint("Vertical", 6))
sketch14.addConstraint(Sketcher.Constraint("Horizontal", 7))
sketch14.addConstraint(Sketcher.Constraint("Symmetric", 1, 2, 4, 2, -1, 1))
sketch14.addConstraint(Sketcher.Constraint("Symmetric", 0, 2, 5, 2, -2))
sketch14.addConstraint(Sketcher.Constraint("Horizontal", 3, 2, 6, 2))
sketch14.addConstraint(Sketcher.Constraint("DistanceX", 1, 1, 1, 2, Q("6.5 mm")))
sketch14.addConstraint(Sketcher.Constraint("DistanceX", 0, 2, -1, 1, Q("34 mm")))
sketch14.addConstraint(Sketcher.Constraint("DistanceY", 0, 2, 0, 1, Q("3.175 mm")))
sketch14.setExpression("Constraints[19]", "Params.sketch14_width")
pad4 = body.newObject("PartDesign::Pad", "Pad003")
pad4.Profile = sketch14
pad4.setExpression("Length", "Params.pad4_length")

# Sketch on XZ plane
sketch15 = body.newObject("Sketcher::SketchObject", "Sketch014")
sketch15.AttachmentSupport = (doc.getObject("XZ_Plane"), [""])
sketch15.MapMode = "FlatFace"
sketch15.AttachmentOffset = App.Placement(Vector(0, 0, -3.175), App.Rotation())
sketch15.addGeometry(Part.Circle(Vector(-30, 47.3, 0), Vector(0, 0, 1), 1.5), False)
sketch15.addGeometry(Part.Circle(Vector(30, 47.3, 0), Vector(0, 0, 1), 1.5), False)
sketch15.addConstraint(Sketcher.Constraint("Equal", 0, 1))
sketch15.addConstraint(Sketcher.Constraint("Symmetric", 0, 3, 1, 3, -2))
sketch15.addConstraint(Sketcher.Constraint("Diameter", 0, Q("3 mm")))
sketch15.addConstraint(Sketcher.Constraint("DistanceX", 0, 3, -1, 1, Q("30 mm")))
sketch15.addConstraint(Sketcher.Constraint("DistanceY", -1, 1, 0, 3, Q("47.3266 mm")))
sketch15.setExpression("Constraints[2]", "Params.sketch15_diameter")
pocket7 = body.newObject("PartDesign::Pocket", "Pocket006")
pocket7.Profile = sketch15
pocket7.Type = "ThroughAll"
pocket7.Reversed = True

# Sketch on YZ plane
sketch16 = body.newObject("Sketcher::SketchObject", "Sketch015")
sketch16.AttachmentSupport = (doc.getObject("YZ_Plane"), [""])
sketch16.MapMode = "FlatFace"
sketch16.AttachmentOffset = App.Placement(Vector(0, 0, -27.5), App.Rotation())
add_polygon(sketch16, [(3.2, 16.6), (0, 16.6), (0, -1.4), (3.2, -1.4)])  # lines 0-3
sketch16.addConstraint(Sketcher.Constraint("Horizontal", 0))
sketch16.addConstraint(Sketcher.Constraint("Vertical", 1))
sketch16.addConstraint(Sketcher.Constraint("Horizontal", 2))
sketch16.addConstraint(Sketcher.Constraint("Vertical", 3))
sketch16.addConstraint(Sketcher.Constraint("PointOnObject", 0, 2, -2))
sketch16.addConstraint(Sketcher.Constraint("DistanceY", 1, 2, 1, 1, Q("18 mm")))
sketch16.addConstraint(Sketcher.Constraint("DistanceX", 0, 2, 0, 1, Q("3.175 mm")))
sketch16.addConstraint(Sketcher.Constraint("DistanceY", -1, 1, 0, 2, Q("16.55 mm")))
sketch16.setExpression("Constraints[9]", "Params.sketch16_height")
pad5 = body.newObject("PartDesign::Pad", "Pad004")
pad5.Profile = sketch16
pad5.setExpression("Length", "Params.pad5_length")

# Sketch on YZ plane
sketch17 = body.newObject("Sketcher::SketchObject", "Sketch016")
sketch17.AttachmentSupport = (doc.getObject("YZ_Plane"), [""])
sketch17.MapMode = "FlatFace"
sketch17.AttachmentOffset = App.Placement(Vector(0, 0, 27.5), App.Rotation())
add_polygon(sketch17, [(3.2, -1.4), (0, -1.4), (0, 16.6), (3.2, 16.6)])  # lines 0-3
sketch17.addConstraint(Sketcher.Constraint("Horizontal", 0))
sketch17.addConstraint(Sketcher.Constraint("Vertical", 1))
sketch17.addConstraint(Sketcher.Constraint("Horizontal", 2))
sketch17.addConstraint(Sketcher.Constraint("Vertical", 3))
sketch17.addConstraint(Sketcher.Constraint("PointOnObject", 0, 2, -2))
sketch17.addConstraint(Sketcher.Constraint("DistanceY", 1, 1, 1, 2, Q("18 mm")))
sketch17.addConstraint(Sketcher.Constraint("DistanceX", 0, 2, 0, 1, Q("3.175 mm")))
sketch17.addConstraint(Sketcher.Constraint("DistanceY", 0, 2, -1, 1, Q("1.45 mm")))
sketch17.setExpression("Constraints[9]", "Params.sketch17_height")
pad6 = body.newObject("PartDesign::Pad", "Pad005")
pad6.Profile = sketch17
pad6.setExpression("Length", "Params.pad6_length")
pad6.Reversed = True

# Sketch on XZ plane
sketch18 = body.newObject("Sketcher::SketchObject", "Sketch017")
sketch18.AttachmentSupport = (doc.getObject("XZ_Plane"), [""])
sketch18.MapMode = "FlatFace"
sketch18.AttachmentOffset = App.Placement(Vector(0, 0, -3.175), App.Rotation())
sketch18.addGeometry(Part.Circle(Vector(-26, 13.8, 0), Vector(0, 0, 1), 1.5), False)
sketch18.addGeometry(Part.Circle(Vector(26, 13.8, 0), Vector(0, 0, 1), 1.5), False)
sketch18.addConstraint(Sketcher.Constraint("Equal", 0, 1))
sketch18.addConstraint(Sketcher.Constraint("Symmetric", 0, 3, 1, 3, -2))
sketch18.addConstraint(Sketcher.Constraint("Diameter", 0, Q("3 mm")))
sketch18.addConstraint(Sketcher.Constraint("DistanceX", 0, 3, -1, 1, Q("26 mm")))
sketch18.addConstraint(Sketcher.Constraint("DistanceY", -1, 1, 0, 3, Q("13.8266 mm")))
sketch18.setExpression("Constraints[2]", "Params.sketch18_diameter")
pocket8 = body.newObject("PartDesign::Pocket", "Pocket007")
pocket8.Profile = sketch18
pocket8.Type = "ThroughAll"
pocket8.Reversed = True

# Sketch on XZ plane
sketch19 = body.newObject("Sketcher::SketchObject", "Sketch018")
sketch19.AttachmentSupport = (doc.getObject("XZ_Plane"), [""])
sketch19.MapMode = "FlatFace"
sketch19.AttachmentOffset = App.Placement(Vector(0, 0, -3.175), App.Rotation())
add_polygon(sketch19, [(-22, -9), (-22, -1), (22, -1), (22, -9)])  # lines 0-3
sketch19.addConstraint(Sketcher.Constraint("Vertical", 0))
sketch19.addConstraint(Sketcher.Constraint("Horizontal", 1))
sketch19.addConstraint(Sketcher.Constraint("Vertical", 2))
sketch19.addConstraint(Sketcher.Constraint("Horizontal", 3))
sketch19.addConstraint(Sketcher.Constraint("DistanceY", 0, 1, 0, 2, Q("8 mm")))
sketch19.addConstraint(Sketcher.Constraint("DistanceX", 1, 1, 1, 2, Q("43.4 mm")))
sketch19.addConstraint(Sketcher.Constraint("DistanceX", 0, 2, -1, 1, Q("21.7 mm")))
sketch19.addConstraint(Sketcher.Constraint("DistanceY", 0, 2, -1, 1, Q("1.45 mm")))
sketch19.setExpression("Constraints[8]", "Params.sketch19_height")
sketch19.setExpression("Constraints[9]", "Params.sketch19_width")
pocket9 = body.newObject("PartDesign::Pocket", "Pocket008")
pocket9.Profile = sketch19
pocket9.Type = "ThroughAll"
pocket9.Reversed = True

doc.recompute()
